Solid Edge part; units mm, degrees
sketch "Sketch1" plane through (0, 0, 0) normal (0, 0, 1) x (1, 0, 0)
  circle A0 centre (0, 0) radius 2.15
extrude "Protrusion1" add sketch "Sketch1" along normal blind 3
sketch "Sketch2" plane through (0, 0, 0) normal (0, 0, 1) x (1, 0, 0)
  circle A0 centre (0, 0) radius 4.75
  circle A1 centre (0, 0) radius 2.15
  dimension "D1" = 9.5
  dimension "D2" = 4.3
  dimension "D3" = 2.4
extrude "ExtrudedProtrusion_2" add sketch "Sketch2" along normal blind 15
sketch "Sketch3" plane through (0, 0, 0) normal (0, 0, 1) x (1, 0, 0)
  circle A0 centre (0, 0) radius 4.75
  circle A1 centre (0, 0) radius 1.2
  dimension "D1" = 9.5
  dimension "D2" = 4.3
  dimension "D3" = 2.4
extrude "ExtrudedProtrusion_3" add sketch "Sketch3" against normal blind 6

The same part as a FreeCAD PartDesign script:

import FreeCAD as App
import Part
import Sketcher
Q = App.Units.Quantity

doc = App.newDocument("Part")
body = doc.addObject("PartDesign::Body", "Body")

# Sketch on XY plane
sketch1 = doc.addObject("Sketcher::SketchObject", "Sketch")
body.addObject(sketch1)
sketch1.AttachmentSupport = (doc.XY_Plane, [""])
sketch1.MapMode = "FlatFace"
sketch1.addGeometry(Part.Circle(App.Vector(0, 0, 0), App.Vector(0, 0, 1), 2.1), False)
sketch1.addConstraint(Sketcher.Constraint("Coincident", 0, 3, -1, 1))
sketch1.addConstraint(Sketcher.Constraint("Diameter", 0, Q("4.3 mm")))
pad1 = doc.addObject("PartDesign::Pad", "Pad")
body.addObject(pad1)
pad1.Profile = sketch1
pad1.Length = 3

# Sketch on XY plane
sketch2 = doc.addObject("Sketcher::SketchObject", "Sketch001")
body.addObject(sketch2)
sketch2.AttachmentSupport = (doc.XY_Plane, [""])
sketch2.MapMode = "FlatFace"
sketch2.addGeometry(Part.Circle(App.Vector(0, 0, 0), App.Vector(0, 0, 1), 4.8), False)
sketch2.addGeometry(Part.Circle(App.Vector(0, 0, 0), App.Vector(0, 0, 1), 2.1), False)
sketch2.addConstraint(Sketcher.Constraint("Coincident", 0, 3, -1, 1))
sketch2.addConstraint(Sketcher.Constraint("Coincident", 1, 3, -1, 1))
sketch2.addConstraint(Sketcher.Constraint("Diameter", 0, Q("9.5 mm")))
sketch2.addConstraint(Sketcher.Constraint("Diameter", 1, Q("4.3 mm")))
pad2 = doc.addObject("PartDesign::Pad", "Pad001")
body.addObject(pad2)
pad2.Profile = sketch2
pad2.Length = 15

# Sketch on XY plane
sketch3 = doc.addObject("Sketcher::SketchObject", "Sketch002")
body.addObject(sketch3)
sketch3.AttachmentSupport = (doc.XY_Plane, [""])
sketch3.MapMode = "FlatFace"
sketch3.addGeometry(Part.Circle(App.Vector(0, 0, 0), App.Vector(0, 0, 1), 4.8), False)
sketch3.addGeometry(Part.Circle(App.Vector(0, 0, 0), App.Vector(0, 0, 1), 1.2), False)
sketch3.addConstraint(Sketcher.Constraint("Coincident", 0, 3, -1, 1))
sketch3.addConstraint(Sketcher.Constraint("Coincident", 1, 3, -1, 1))
sketch3.addConstraint(Sketcher.Constraint("Diameter", 0, Q("9.5 mm")))
sketch3.addConstraint(Sketcher.Constraint("Diameter", 1, Q("2.4 mm")))
pad3 = doc.addObject("PartDesign::Pad", "Pad002")
body.addObject(pad3)
pad3.Profile = sketch3
pad3.Length = 6
pad3.Reversed = True

doc.recompute()
